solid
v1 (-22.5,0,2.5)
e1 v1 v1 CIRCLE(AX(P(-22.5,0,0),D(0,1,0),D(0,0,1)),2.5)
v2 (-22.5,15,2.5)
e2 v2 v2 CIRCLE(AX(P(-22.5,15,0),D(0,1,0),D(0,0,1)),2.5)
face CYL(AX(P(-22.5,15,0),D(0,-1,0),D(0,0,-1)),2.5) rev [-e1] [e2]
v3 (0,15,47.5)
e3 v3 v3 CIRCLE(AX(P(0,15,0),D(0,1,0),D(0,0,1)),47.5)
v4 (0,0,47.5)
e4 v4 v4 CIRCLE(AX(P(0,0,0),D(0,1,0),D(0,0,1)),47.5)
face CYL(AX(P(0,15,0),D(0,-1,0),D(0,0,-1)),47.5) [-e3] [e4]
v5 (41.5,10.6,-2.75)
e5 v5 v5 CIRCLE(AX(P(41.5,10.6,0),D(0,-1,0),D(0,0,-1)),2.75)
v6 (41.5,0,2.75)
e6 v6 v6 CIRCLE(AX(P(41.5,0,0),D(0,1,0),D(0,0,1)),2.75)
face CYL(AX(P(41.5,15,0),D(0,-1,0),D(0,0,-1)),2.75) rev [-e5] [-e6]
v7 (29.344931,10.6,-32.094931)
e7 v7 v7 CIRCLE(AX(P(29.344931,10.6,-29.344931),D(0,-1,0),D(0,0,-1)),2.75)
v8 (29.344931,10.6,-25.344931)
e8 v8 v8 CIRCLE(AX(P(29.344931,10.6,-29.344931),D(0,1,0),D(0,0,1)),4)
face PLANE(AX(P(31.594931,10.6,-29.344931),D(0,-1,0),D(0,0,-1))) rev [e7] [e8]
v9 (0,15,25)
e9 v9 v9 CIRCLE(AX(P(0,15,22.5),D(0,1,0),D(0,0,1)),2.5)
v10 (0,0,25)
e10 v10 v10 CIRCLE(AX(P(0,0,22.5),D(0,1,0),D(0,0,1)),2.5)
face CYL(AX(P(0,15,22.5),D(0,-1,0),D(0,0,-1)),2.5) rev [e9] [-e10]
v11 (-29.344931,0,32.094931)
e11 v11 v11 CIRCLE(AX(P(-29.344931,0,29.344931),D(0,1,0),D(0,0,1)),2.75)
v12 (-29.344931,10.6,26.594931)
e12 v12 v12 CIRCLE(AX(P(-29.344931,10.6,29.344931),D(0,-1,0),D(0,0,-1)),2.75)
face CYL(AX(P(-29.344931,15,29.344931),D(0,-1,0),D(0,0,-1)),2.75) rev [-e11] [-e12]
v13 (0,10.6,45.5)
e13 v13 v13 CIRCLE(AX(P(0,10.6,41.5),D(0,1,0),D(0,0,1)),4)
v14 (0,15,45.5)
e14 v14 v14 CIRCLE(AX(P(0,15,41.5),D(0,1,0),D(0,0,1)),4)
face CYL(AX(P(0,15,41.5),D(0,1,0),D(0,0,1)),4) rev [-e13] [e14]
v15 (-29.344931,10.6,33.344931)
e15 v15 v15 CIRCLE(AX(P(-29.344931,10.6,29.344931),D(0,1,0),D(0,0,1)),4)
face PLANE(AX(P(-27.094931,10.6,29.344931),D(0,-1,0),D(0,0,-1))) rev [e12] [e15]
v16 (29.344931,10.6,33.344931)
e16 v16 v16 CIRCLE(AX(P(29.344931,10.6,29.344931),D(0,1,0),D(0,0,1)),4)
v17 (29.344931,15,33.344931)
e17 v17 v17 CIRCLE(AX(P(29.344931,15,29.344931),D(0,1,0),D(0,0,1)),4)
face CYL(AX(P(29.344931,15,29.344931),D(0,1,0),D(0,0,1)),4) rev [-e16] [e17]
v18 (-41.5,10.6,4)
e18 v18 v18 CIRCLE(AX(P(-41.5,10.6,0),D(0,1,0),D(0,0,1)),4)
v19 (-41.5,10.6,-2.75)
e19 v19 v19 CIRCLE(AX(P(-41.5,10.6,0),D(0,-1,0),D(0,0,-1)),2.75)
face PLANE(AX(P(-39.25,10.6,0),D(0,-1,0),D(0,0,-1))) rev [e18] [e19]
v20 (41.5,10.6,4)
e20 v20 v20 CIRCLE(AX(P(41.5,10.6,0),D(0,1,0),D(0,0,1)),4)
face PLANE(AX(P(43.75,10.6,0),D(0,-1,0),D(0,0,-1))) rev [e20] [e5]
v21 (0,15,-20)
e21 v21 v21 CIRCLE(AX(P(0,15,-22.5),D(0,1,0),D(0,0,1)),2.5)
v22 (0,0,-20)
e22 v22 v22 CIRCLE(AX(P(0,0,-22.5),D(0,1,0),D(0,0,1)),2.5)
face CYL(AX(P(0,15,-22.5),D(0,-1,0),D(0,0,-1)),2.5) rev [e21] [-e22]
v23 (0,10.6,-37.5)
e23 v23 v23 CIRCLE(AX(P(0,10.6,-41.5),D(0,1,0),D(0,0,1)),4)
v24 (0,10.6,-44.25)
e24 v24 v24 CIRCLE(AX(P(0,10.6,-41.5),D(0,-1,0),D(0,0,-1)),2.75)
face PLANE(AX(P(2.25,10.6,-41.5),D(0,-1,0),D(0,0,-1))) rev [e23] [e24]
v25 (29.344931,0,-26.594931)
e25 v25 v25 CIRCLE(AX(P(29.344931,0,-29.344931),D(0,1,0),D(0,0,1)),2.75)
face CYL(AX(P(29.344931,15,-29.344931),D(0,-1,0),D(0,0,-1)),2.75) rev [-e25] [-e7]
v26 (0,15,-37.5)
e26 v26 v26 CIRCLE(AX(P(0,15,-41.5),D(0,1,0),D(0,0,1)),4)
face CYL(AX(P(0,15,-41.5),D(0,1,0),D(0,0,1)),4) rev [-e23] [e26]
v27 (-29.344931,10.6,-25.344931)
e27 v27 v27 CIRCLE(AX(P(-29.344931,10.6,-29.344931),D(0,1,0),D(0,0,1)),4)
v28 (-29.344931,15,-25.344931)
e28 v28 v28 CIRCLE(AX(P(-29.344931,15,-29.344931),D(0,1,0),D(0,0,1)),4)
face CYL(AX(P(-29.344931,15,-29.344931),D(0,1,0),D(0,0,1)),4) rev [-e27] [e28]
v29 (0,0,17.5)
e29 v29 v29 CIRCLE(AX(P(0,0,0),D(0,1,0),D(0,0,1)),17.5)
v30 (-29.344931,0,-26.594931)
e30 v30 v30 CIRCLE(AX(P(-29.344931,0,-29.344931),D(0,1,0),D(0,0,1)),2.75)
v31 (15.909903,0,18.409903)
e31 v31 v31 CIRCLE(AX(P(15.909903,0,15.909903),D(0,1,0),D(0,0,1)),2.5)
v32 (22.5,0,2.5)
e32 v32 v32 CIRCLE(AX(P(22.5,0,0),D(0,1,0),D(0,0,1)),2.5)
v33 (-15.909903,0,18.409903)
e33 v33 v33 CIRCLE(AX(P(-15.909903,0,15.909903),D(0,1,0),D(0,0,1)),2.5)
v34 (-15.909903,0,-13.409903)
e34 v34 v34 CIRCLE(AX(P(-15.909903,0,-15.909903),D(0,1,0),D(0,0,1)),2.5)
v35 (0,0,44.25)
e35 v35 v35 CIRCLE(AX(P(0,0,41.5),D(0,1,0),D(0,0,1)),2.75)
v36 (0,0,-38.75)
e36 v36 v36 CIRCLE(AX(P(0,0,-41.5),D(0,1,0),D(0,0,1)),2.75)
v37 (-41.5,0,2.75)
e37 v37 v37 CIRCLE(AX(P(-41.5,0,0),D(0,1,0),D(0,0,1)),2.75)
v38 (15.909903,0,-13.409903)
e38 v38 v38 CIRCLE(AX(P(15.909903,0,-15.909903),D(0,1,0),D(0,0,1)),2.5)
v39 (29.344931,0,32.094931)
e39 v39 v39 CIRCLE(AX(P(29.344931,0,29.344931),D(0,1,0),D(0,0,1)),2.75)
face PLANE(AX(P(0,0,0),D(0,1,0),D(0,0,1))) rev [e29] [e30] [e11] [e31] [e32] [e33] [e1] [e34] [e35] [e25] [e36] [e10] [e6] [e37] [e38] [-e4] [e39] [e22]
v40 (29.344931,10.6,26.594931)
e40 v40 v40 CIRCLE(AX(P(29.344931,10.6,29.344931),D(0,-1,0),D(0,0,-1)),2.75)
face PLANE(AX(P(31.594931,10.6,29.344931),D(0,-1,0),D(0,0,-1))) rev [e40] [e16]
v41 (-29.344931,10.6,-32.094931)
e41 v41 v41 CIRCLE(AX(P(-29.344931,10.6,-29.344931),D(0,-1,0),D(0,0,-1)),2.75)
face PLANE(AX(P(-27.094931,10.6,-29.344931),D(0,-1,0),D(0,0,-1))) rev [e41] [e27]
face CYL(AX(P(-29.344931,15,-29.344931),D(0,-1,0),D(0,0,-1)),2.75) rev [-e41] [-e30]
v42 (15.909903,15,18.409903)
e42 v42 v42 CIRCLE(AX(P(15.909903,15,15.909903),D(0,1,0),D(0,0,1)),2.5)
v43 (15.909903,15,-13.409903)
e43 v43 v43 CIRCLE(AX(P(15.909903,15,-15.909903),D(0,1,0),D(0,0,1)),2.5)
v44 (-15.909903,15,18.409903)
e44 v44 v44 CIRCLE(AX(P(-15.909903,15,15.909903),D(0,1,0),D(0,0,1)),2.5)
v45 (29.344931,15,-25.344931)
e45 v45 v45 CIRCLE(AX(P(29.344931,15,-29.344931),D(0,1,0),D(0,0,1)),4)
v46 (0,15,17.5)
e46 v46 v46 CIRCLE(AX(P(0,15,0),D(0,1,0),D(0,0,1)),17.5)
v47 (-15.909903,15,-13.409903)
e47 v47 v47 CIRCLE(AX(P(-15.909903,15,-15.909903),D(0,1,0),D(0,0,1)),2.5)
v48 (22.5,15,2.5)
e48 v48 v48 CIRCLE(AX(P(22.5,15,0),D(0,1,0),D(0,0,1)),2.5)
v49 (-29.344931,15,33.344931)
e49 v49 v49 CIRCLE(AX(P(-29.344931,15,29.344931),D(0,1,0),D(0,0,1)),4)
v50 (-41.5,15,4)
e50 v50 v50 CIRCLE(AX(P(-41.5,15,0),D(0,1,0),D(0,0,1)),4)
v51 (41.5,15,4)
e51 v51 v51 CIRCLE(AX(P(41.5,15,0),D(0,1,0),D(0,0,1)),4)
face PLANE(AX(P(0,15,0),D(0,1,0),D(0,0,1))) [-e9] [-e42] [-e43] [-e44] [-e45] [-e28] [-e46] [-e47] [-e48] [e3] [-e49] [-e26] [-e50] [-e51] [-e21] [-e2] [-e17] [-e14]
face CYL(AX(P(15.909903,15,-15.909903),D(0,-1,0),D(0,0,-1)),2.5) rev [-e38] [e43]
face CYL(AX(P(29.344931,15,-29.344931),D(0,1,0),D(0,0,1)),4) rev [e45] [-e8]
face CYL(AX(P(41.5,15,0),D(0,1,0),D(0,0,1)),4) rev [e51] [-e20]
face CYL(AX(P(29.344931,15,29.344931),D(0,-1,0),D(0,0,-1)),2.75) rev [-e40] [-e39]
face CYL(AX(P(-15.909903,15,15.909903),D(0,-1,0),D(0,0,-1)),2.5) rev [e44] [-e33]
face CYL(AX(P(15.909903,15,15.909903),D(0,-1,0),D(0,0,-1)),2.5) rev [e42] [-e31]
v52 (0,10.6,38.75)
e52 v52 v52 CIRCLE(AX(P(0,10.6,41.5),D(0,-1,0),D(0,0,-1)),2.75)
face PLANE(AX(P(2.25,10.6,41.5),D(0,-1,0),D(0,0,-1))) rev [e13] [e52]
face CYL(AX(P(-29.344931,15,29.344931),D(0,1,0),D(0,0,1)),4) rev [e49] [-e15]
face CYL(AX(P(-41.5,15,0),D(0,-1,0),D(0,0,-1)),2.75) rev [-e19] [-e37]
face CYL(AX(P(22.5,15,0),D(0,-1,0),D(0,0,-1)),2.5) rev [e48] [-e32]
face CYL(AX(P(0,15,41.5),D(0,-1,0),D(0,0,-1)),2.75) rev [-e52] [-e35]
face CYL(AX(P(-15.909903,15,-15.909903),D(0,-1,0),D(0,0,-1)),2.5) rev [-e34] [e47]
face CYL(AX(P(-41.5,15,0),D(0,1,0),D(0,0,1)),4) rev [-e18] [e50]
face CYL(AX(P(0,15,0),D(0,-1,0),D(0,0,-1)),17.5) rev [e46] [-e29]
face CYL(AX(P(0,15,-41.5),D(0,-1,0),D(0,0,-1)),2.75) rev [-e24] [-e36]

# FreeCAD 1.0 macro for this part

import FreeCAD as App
import Part
import Sketcher
Q = App.Units.Quantity

doc = App.newDocument("Part")
params = doc.addObject("Spreadsheet::Sheet", "Params")
for row, (alias, value) in enumerate([
    ("sketch1_diameter", "95 mm"),
    ("sketch1_diameter2", "5 mm"),
    ("sketch1_diameter3", "35 mm"),
    ("sketch1_diameter4", "5.5 mm"),
    ("pad1_length", "15 mm"),
    ("sketch2_diameter", "4.5 mm"),
    ("hole_diameter", "4.5 mm"),
    ("hole_cbore_diameter", "8 mm"),
    ("hole_cbore_depth", "4.4 mm"),
], start=1):
    params.set(f"A{row}", alias)
    params.set(f"B{row}", "=" + value)
    params.setAlias(f"B{row}", alias)

body = doc.addObject("PartDesign::Body", "Body")

sketch1 = body.newObject("Sketcher::SketchObject", "Sketch")
sketch1.AttachmentSupport = (doc.getObject("XZ_Plane"), [""])
sketch1.MapMode = "FlatFace"
sketch1.addGeometry([
    Part.Circle(App.Vector(0, 0, 0), App.Vector(0, 0, 1), 47.5),
    Part.Circle(App.Vector(-29.3, -29.3, 0), App.Vector(0, 0, 1), 2.8),
    Part.Circle(App.Vector(0, -41.5, 0), App.Vector(0, 0, 1), 2.8),
    Part.Circle(App.Vector(-15.9, -15.9, 0), App.Vector(0, 0, 1), 2.5),
    Part.Circle(App.Vector(-41.5, 0, 0), App.Vector(0, 0, 1), 2.8),
    Part.Circle(App.Vector(-22.5, 0, 0), App.Vector(0, 0, 1), 2.5),
    Part.Circle(App.Vector(-29.3, 29.3, 0), App.Vector(0, 0, 1), 2.8),
    Part.Circle(App.Vector(-15.9, 15.9, 0), App.Vector(0, 0, 1), 2.5),
    Part.Circle(App.Vector(0, -22.5, 0), App.Vector(0, 0, 1), 2.5),
    Part.Circle(App.Vector(15.9, -15.9, 0), App.Vector(0, 0, 1), 2.5),
    Part.Circle(App.Vector(29.3, -29.3, 0), App.Vector(0, 0, 1), 2.8),
    Part.Circle(App.Vector(41.5, 0, 0), App.Vector(0, 0, 1), 2.8),
    Part.Circle(App.Vector(0, 0, 0), App.Vector(0, 0, 1), 17.5),
    Part.Circle(App.Vector(15.9, 15.9, 0), App.Vector(0, 0, 1), 2.5),
    Part.Circle(App.Vector(0, 22.5, 0), App.Vector(0, 0, 1), 2.5),
    Part.Circle(App.Vector(0, 41.5, 0), App.Vector(0, 0, 1), 2.8),
    Part.Circle(App.Vector(22.5, 0, 0), App.Vector(0, 0, 1), 2.5),
    Part.Circle(App.Vector(29.3, 29.3, 0), App.Vector(0, 0, 1), 2.8),
], False)
sketch1.addConstraint([
    Sketcher.Constraint("Coincident", 0, 3, -1, 1),
    Sketcher.Constraint("Coincident", 12, 3, -1, 1),
    Sketcher.Constraint("Equal", 1, 2),
    Sketcher.Constraint("Equal", 2, 4),
    Sketcher.Constraint("Equal", 3, 5),
    Sketcher.Constraint("Equal", 4, 6),
    Sketcher.Constraint("Equal", 5, 7),
    Sketcher.Constraint("Equal", 7, 8),
    Sketcher.Constraint("Equal", 8, 9),
    Sketcher.Constraint("Equal", 6, 10),
    Sketcher.Constraint("Equal", 10, 11),
    Sketcher.Constraint("Equal", 9, 13),
    Sketcher.Constraint("Equal", 13, 14),
    Sketcher.Constraint("Equal", 11, 15),
    Sketcher.Constraint("Equal", 14, 16),
    Sketcher.Constraint("Equal", 15, 17),
    Sketcher.Constraint("Symmetric", 7, 3, 9, 3, -1, 1),
    Sketcher.Constraint("Symmetric", 6, 3, 10, 3, -1, 1),
    Sketcher.Constraint("Symmetric", 4, 3, 11, 3, -1, 1),
    Sketcher.Constraint("Symmetric", 3, 3, 13, 3, -1, 1),
    Sketcher.Constraint("Symmetric", 8, 3, 14, 3, -1, 1),
    Sketcher.Constraint("Symmetric", 2, 3, 15, 3, -1, 1),
    Sketcher.Constraint("Symmetric", 5, 3, 16, 3, -1, 1),
    Sketcher.Constraint("Symmetric", 1, 3, 17, 3, -1, 1),
    Sketcher.Constraint("Symmetric", 3, 3, 9, 3, -2),
    Sketcher.Constraint("Symmetric", 1, 3, 10, 3, -2),
    Sketcher.Constraint("PointOnObject", 2, 3, -2),
    Sketcher.Constraint("PointOnObject", 4, 3, -1),
    Sketcher.Constraint("PointOnObject", 5, 3, -1),
    Sketcher.Constraint("PointOnObject", 8, 3, -2),
    Sketcher.Constraint("Diameter", 0, Q("95 mm")),
    Sketcher.Constraint("Diameter", 3, Q("5 mm")),
    Sketcher.Constraint("Diameter", 12, Q("35 mm")),
    Sketcher.Constraint("Diameter", 1, Q("5.5 mm")),
    Sketcher.Constraint("DistanceX", 4, 3, 5, 3, Q("19 mm")),
    Sketcher.Constraint("DistanceY", 2, 3, 8, 3, Q("19 mm")),
    Sketcher.Constraint("DistanceY", 2, 3, -1, 1, Q("41.5 mm")),
    Sketcher.Constraint("DistanceX", 4, 3, -1, 1, Q("41.5 mm")),
    Sketcher.Constraint("DistanceX", 1, 3, -1, 1, Q("29.344931 mm")),
    Sketcher.Constraint("DistanceY", 1, 3, -1, 1, Q("29.344931 mm")),
    Sketcher.Constraint("DistanceX", 1, 3, 3, 3, Q("13.435029 mm")),
    Sketcher.Constraint("DistanceY", 1, 3, 3, 3, Q("13.435029 mm")),
])
sketch1.setExpression("Constraints[30]", "Params.sketch1_diameter")
sketch1.setExpression("Constraints[31]", "Params.sketch1_diameter2")
sketch1.setExpression("Constraints[32]", "Params.sketch1_diameter3")
sketch1.setExpression("Constraints[33]", "Params.sketch1_diameter4")
pad1 = body.newObject("PartDesign::Pad", "Pad")
pad1.Profile = sketch1
pad1.setExpression("Length", "Params.pad1_length")
pad1.Reversed = True

sketch2 = body.newObject("Sketcher::SketchObject", "Sketch001")
sketch2.AttachmentSupport = (doc.getObject("XZ_Plane"), [""])
sketch2.MapMode = "FlatFace"
sketch2.AttachmentOffset = App.Placement(App.Vector(0, 0, -15), App.Rotation())
sketch2.addGeometry([
    Part.Circle(App.Vector(0, -41.5, 0), App.Vector(0, 0, 1), 2.2),
    Part.Circle(App.Vector(29.3, -29.3, 0), App.Vector(0, 0, 1), 2.2),
    Part.Circle(App.Vector(41.5, 0, 0), App.Vector(0, 0, 1), 2.2),
    Part.Circle(App.Vector(29.3, 29.3, 0), App.Vector(0, 0, 1), 2.2),
    Part.Circle(App.Vector(0, 41.5, 0), App.Vector(0, 0, 1), 2.2),
    Part.Circle(App.Vector(-29.3, 29.3, 0), App.Vector(0, 0, 1), 2.2),
    Part.Circle(App.Vector(-41.5, 0, 0), App.Vector(0, 0, 1), 2.2),
    Part.Circle(App.Vector(-29.3, -29.3, 0), App.Vector(0, 0, 1), 2.2),
], False)
sketch2.addConstraint([
    Sketcher.Constraint("Equal", 0, 1),
    Sketcher.Constraint("Equal", 1, 2),
    Sketcher.Constraint("Equal", 2, 3),
    Sketcher.Constraint("Equal", 3, 4),
    Sketcher.Constraint("Equal", 4, 5),
    Sketcher.Constraint("Equal", 5, 6),
    Sketcher.Constraint("Equal", 6, 7),
    Sketcher.Constraint("Symmetric", 0, 3, 4, 3, -1, 1),
    Sketcher.Constraint("Symmetric", 1, 3, 5, 3, -1, 1),
    Sketcher.Constraint("Symmetric", 2, 3, 6, 3, -1, 1),
    Sketcher.Constraint("Symmetric", 3, 3, 7, 3, -1, 1),
    Sketcher.Constraint("Symmetric", 3, 3, 5, 3, -2),
    Sketcher.Constraint("PointOnObject", 0, 3, -2),
    Sketcher.Constraint("PointOnObject", 2, 3, -1),
    Sketcher.Constraint("Diameter", 0, Q("4.5 mm")),
    Sketcher.Constraint("DistanceY", 0, 3, 4, 3, Q("83 mm")),
    Sketcher.Constraint("DistanceX", -1, 1, 2, 3, Q("41.5 mm")),
    Sketcher.Constraint("DistanceX", -1, 1, 1, 3, Q("29.344931 mm")),
    Sketcher.Constraint("DistanceY", 1, 3, -1, 1, Q("29.344931 mm")),
])
sketch2.setExpression("Constraints[14]", "Params.sketch2_diameter")
doc.recompute()
hole = body.newObject("PartDesign::Hole", "Hole")
hole.Profile = sketch2
hole.ThreadType = "None"
hole.setExpression("Diameter", "Params.hole_diameter")
hole.DepthType = "ThroughAll"
hole.HoleCutType = "Counterbore"
hole.setExpression("HoleCutDiameter", "Params.hole_cbore_diameter")
hole.setExpression("HoleCutDepth", "Params.hole_cbore_depth")
hole.Reversed = True

doc.recompute()
